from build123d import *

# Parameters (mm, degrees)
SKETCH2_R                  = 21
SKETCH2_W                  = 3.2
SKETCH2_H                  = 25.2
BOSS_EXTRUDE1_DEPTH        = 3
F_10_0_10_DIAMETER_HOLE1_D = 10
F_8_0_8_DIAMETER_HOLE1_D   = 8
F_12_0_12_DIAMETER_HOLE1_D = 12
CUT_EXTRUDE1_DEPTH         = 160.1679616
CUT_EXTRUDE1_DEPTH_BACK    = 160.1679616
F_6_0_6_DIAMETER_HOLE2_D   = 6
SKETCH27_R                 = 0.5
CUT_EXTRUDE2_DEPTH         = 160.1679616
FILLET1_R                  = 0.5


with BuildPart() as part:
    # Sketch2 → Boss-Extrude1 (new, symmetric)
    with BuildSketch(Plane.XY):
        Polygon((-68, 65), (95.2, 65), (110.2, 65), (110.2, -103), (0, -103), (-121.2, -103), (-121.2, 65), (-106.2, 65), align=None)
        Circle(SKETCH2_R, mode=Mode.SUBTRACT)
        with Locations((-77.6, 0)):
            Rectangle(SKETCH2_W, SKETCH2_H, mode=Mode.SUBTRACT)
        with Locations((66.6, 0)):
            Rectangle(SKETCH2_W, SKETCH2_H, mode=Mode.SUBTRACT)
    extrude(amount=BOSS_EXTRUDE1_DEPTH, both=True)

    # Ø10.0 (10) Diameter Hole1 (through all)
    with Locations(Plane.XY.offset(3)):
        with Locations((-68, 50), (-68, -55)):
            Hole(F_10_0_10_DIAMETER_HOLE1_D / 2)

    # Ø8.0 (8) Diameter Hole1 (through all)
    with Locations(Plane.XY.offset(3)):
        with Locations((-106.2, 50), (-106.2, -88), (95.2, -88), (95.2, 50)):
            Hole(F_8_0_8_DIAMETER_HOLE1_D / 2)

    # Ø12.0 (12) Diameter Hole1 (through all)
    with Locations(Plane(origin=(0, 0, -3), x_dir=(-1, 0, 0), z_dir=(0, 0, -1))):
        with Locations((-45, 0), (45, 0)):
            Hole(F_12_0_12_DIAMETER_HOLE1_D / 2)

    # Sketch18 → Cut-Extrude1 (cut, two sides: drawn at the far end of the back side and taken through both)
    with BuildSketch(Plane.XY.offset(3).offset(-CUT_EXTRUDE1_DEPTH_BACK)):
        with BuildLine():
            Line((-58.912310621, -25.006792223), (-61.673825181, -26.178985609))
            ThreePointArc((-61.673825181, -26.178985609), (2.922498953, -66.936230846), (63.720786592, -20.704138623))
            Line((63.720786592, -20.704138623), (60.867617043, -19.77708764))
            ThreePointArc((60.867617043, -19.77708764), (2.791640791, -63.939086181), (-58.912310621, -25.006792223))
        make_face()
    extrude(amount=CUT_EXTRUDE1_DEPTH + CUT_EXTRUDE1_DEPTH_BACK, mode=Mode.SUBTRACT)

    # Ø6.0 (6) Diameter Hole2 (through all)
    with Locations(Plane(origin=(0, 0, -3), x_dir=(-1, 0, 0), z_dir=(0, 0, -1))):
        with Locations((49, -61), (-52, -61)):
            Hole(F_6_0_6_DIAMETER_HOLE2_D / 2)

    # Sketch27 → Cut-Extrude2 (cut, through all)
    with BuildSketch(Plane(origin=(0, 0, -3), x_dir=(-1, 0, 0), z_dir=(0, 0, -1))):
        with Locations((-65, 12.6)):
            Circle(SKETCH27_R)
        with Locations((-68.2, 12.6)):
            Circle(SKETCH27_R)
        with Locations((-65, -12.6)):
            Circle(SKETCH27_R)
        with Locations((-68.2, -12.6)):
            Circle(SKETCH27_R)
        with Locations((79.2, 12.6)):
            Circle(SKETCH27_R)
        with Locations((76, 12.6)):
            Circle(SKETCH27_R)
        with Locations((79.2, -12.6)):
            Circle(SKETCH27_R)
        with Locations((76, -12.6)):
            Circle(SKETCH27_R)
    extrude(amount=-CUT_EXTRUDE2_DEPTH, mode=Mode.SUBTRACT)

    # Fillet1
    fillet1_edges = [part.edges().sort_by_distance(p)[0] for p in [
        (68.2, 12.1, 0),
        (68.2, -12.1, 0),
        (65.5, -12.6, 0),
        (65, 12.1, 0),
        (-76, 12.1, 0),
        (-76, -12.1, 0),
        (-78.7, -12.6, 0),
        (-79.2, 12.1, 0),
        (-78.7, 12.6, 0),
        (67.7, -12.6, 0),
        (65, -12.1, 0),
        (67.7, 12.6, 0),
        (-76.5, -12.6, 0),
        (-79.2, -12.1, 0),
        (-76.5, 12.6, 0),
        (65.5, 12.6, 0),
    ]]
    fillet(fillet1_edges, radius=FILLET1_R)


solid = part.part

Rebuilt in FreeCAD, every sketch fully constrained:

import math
import FreeCAD as App
import Part
import Sketcher

V = App.Vector
Q = App.Units.Quantity


def edges_at(feature, points):
    """Names of the edges that pass closest to the given points."""
    edges = feature.Shape.Edges
    near = lambda p: min(range(len(edges)), key=lambda i: edges[i].distToShape(Part.Vertex(*p))[0])
    return sorted({f"Edge{near(p) + 1}" for p in points})


def add_polygon(sketch, points):
    """Adds a closed chain of lines whose ends are joined by coincident constraints."""
    first, n = sketch.GeometryCount, len(points)
    for a, b in zip(points, points[1:] + points[:1]):
        sketch.addGeometry(Part.LineSegment(App.Vector(*a, 0), App.Vector(*b, 0)), False)
    for i in range(n):
        sketch.addConstraint(Sketcher.Constraint("Coincident", first + i, 2, first + (i + 1) % n, 1))

doc = App.newDocument("Part")
body = doc.addObject("PartDesign::Body", "Body")

sketch1 = body.newObject("Sketcher::SketchObject", "Sketch")
sketch1.AttachmentSupport = (doc.getObject("XY_Plane"), [""])
sketch1.MapMode = "FlatFace"
add_polygon(sketch1, [(110.2, 65), (-121.2, 65), (-121.2, -103), (110.2, -103)])
add_polygon(sketch1, [(65, -12.6), (65, 12.6), (68.2, 12.6), (68.2, -12.6)])
sketch1.addGeometry(Part.Circle(V(0, 0, 0), V(0, 0, 1), 21), False)
add_polygon(sketch1, [(-79.2, -12.6), (-79.2, 12.6), (-76, 12.6), (-76, -12.6)])
sketch1.addConstraint(Sketcher.Constraint("Horizontal", 0))
sketch1.addConstraint(Sketcher.Constraint("Vertical", 1))
sketch1.addConstraint(Sketcher.Constraint("Horizontal", 2))
sketch1.addConstraint(Sketcher.Constraint("Vertical", 3))
sketch1.addConstraint(Sketcher.Constraint("Vertical", 4))
sketch1.addConstraint(Sketcher.Constraint("Horizontal", 5))
sketch1.addConstraint(Sketcher.Constraint("Vertical", 6))
sketch1.addConstraint(Sketcher.Constraint("Horizontal", 7))
sketch1.addConstraint(Sketcher.Constraint("Vertical", 9))
sketch1.addConstraint(Sketcher.Constraint("Horizontal", 10))
sketch1.addConstraint(Sketcher.Constraint("Vertical", 11))
sketch1.addConstraint(Sketcher.Constraint("Horizontal", 12))
sketch1.addConstraint(Sketcher.Constraint("Coincident", 8, 3, -1, 1))
sketch1.addConstraint(Sketcher.Constraint("Horizontal", 5, 2, 9, 2))
sketch1.addConstraint(Sketcher.Constraint("Horizontal", 7, 2, 11, 2))
sketch1.addConstraint(Sketcher.Constraint("Equal", 7, 10))
sketch1.addConstraint(Sketcher.Constraint("Diameter", 8, Q("42 mm")))
sketch1.addConstraint(Sketcher.Constraint("DistanceY", 1, 2, 1, 1, Q("168 mm")))
sketch1.addConstraint(Sketcher.Constraint("DistanceX", 0, 2, 0, 1, Q("231.4 mm")))
sketch1.addConstraint(Sketcher.Constraint("DistanceX", 5, 1, 5, 2, Q("3.2 mm")))
sketch1.addConstraint(Sketcher.Constraint("DistanceY", 4, 1, 4, 2, Q("25.2 mm")))
sketch1.addConstraint(Sketcher.Constraint("DistanceY", -1, 1, 0, 2, Q("65 mm")))
sketch1.addConstraint(Sketcher.Constraint("DistanceX", -1, 1, 4, 2, Q("65 mm")))
sketch1.addConstraint(Sketcher.Constraint("DistanceX", 10, 2, -1, 1, Q("76 mm")))
sketch1.addConstraint(Sketcher.Constraint("DistanceX", 5, 2, 3, 2, Q("42 mm")))
sketch1.addConstraint(Sketcher.Constraint("DistanceY", -1, 1, 4, 2, Q("12.6 mm")))
pad1 = body.newObject("PartDesign::Pad", "Pad")
pad1.Profile = sketch1
pad1.Length = 6
pad1.Midplane = True

sketch2 = body.newObject("Sketcher::SketchObject", "Sketch001")
sketch2.AttachmentSupport = (doc.getObject("XY_Plane"), [""])
sketch2.MapMode = "FlatFace"
sketch2.AttachmentOffset = App.Placement(V(0, 0, 3), App.Rotation())
sketch2.addGeometry(Part.Circle(V(-68, 50, 0), V(0, 0, 1), 5), False)
sketch2.addGeometry(Part.Circle(V(-68, -55, 0), V(0, 0, 1), 5), False)
sketch2.addConstraint(Sketcher.Constraint("Equal", 0, 1))
sketch2.addConstraint(Sketcher.Constraint("Vertical", 0, 3, 1, 3))
sketch2.addConstraint(Sketcher.Constraint("Diameter", 0, Q("10 mm")))
sketch2.addConstraint(Sketcher.Constraint("DistanceX", 0, 3, -1, 1, Q("68 mm")))
sketch2.addConstraint(Sketcher.Constraint("DistanceY", -1, 1, 0, 3, Q("50 mm")))
sketch2.addConstraint(Sketcher.Constraint("DistanceY", 1, 3, -1, 1, Q("55 mm")))
doc.recompute()
hole = body.newObject("PartDesign::Hole", "Hole")
hole.Profile = sketch2
hole.ThreadType = "None"
hole.Diameter = 10
hole.DepthType = "ThroughAll"

sketch3 = body.newObject("Sketcher::SketchObject", "Sketch002")
sketch3.AttachmentSupport = (doc.getObject("XY_Plane"), [""])
sketch3.MapMode = "FlatFace"
sketch3.AttachmentOffset = App.Placement(V(0, 0, 3), App.Rotation())
sketch3.addGeometry(Part.Circle(V(-106.2, 50, 0), V(0, 0, 1), 4), False)
sketch3.addGeometry(Part.Circle(V(-106.2, -88, 0), V(0, 0, 1), 4), False)
sketch3.addGeometry(Part.Circle(V(95.2, -88, 0), V(0, 0, 1), 4), False)
sketch3.addGeometry(Part.Circle(V(95.2, 50, 0), V(0, 0, 1), 4), False)
sketch3.addConstraint(Sketcher.Constraint("Equal", 0, 1))
sketch3.addConstraint(Sketcher.Constraint("Equal", 1, 2))
sketch3.addConstraint(Sketcher.Constraint("Equal", 2, 3))
sketch3.addConstraint(Sketcher.Constraint("Horizontal", 1, 3, 2, 3))
sketch3.addConstraint(Sketcher.Constraint("Horizontal", 0, 3, 3, 3))
sketch3.addConstraint(Sketcher.Constraint("Vertical", 0, 3, 1, 3))
sketch3.addConstraint(Sketcher.Constraint("Vertical", 2, 3, 3, 3))
sketch3.addConstraint(Sketcher.Constraint("Diameter", 0, Q("8 mm")))
sketch3.addConstraint(Sketcher.Constraint("DistanceY", -1, 1, 0, 3, Q("50 mm")))
sketch3.addConstraint(Sketcher.Constraint("DistanceY", 1, 3, -1, 1, Q("88 mm")))
sketch3.addConstraint(Sketcher.Constraint("DistanceX", 0, 3, -1, 1, Q("106.2 mm")))
sketch3.addConstraint(Sketcher.Constraint("DistanceX", -1, 1, 2, 3, Q("95.2 mm")))
doc.recompute()
hole2 = body.newObject("PartDesign::Hole", "Hole001")
hole2.Profile = sketch3
hole2.ThreadType = "None"
hole2.Diameter = 8
hole2.DepthType = "ThroughAll"

sketch4 = body.newObject("Sketcher::SketchObject", "Sketch003")
sketch4.AttachmentSupport = (doc.getObject("XY_Plane"), [""])
sketch4.MapMode = "FlatFace"
sketch4.AttachmentOffset = App.Placement(V(0, 0, -3), App.Rotation())
sketch4.addGeometry(Part.Circle(V(45, 0, 0), V(0, 0, 1), 6), False)
sketch4.addGeometry(Part.Circle(V(-45, 0, 0), V(0, 0, 1), 6), False)
sketch4.addConstraint(Sketcher.Constraint("Equal", 0, 1))
sketch4.addConstraint(Sketcher.Constraint("Symmetric", 0, 3, 1, 3, -1, 1))
sketch4.addConstraint(Sketcher.Constraint("PointOnObject", 0, 3, -1))
sketch4.addConstraint(Sketcher.Constraint("Diameter", 0, Q("12 mm")))
sketch4.addConstraint(Sketcher.Constraint("DistanceX", -1, 1, 0, 3, Q("45 mm")))
doc.recompute()
hole3 = body.newObject("PartDesign::Hole", "Hole002")
hole3.Profile = sketch4
hole3.ThreadType = "None"
hole3.Diameter = 12
hole3.DepthType = "ThroughAll"
hole3.Reversed = True

sketch5 = body.newObject("Sketcher::SketchObject", "Sketch004")
sketch5.AttachmentSupport = (doc.getObject("XY_Plane"), [""])
sketch5.MapMode = "FlatFace"
sketch5.AttachmentOffset = App.Placement(V(0, 0, 3), App.Rotation())
sketch5.addGeometry(Part.LineSegment(V(-58.9, -25, 0), V(-61.7, -26.2, 0)), False)
sketch5.addGeometry(Part.ArcOfCircle(Part.Circle(V(0, 0, 0), V(0, 0, 1), 67), math.radians(-157), math.radians(-18)), False)
sketch5.addGeometry(Part.LineSegment(V(63.7, -20.7, 0), V(60.9, -19.8, 0)), False)
sketch5.addGeometry(Part.ArcOfCircle(Part.Circle(V(0, 0, 0), V(0, 0, 1), 64), math.radians(-157), math.radians(-18)), False)
sketch5.addConstraint(Sketcher.Constraint("Coincident", 0, 2, 1, 1))
sketch5.addConstraint(Sketcher.Constraint("Coincident", 1, 2, 2, 1))
sketch5.addConstraint(Sketcher.Constraint("Coincident", 2, 2, 3, 2))
sketch5.addConstraint(Sketcher.Constraint("Coincident", 3, 1, 0, 1))
sketch5.addConstraint(Sketcher.Constraint("Coincident", 1, 3, -1, 1))
sketch5.addConstraint(Sketcher.Constraint("Coincident", 3, 3, -1, 1))
sketch5.addConstraint(Sketcher.Constraint("Radius", 1, Q("67 mm")))
sketch5.addConstraint(Sketcher.Constraint("Radius", 3, Q("64 mm")))
sketch5.addConstraint(Sketcher.Constraint("Angle", 0, Q("-157 deg")))
sketch5.addConstraint(Sketcher.Constraint("Angle", 2, Q("162 deg")))
sketch5.addConstraint(Sketcher.Constraint("DistanceY", 1, 2, -1, 1, Q("20.704139 mm")))
sketch5.addConstraint(Sketcher.Constraint("DistanceX", 3, 1, -1, 1, Q("58.912311 mm")))
pocket1 = body.newObject("PartDesign::Pocket", "Pocket")
pocket1.Profile = sketch5
pocket1.Type = "ThroughAll"
pocket1.Midplane = True

sketch6 = body.newObject("Sketcher::SketchObject", "Sketch005")
sketch6.AttachmentSupport = (doc.getObject("XY_Plane"), [""])
sketch6.MapMode = "FlatFace"
sketch6.AttachmentOffset = App.Placement(V(0, 0, -3), App.Rotation())
sketch6.addGeometry(Part.Circle(V(-49, -61, 0), V(0, 0, 1), 3), False)
sketch6.addGeometry(Part.Circle(V(52, -61, 0), V(0, 0, 1), 3), False)
sketch6.addConstraint(Sketcher.Constraint("Equal", 0, 1))
sketch6.addConstraint(Sketcher.Constraint("Horizontal", 0, 3, 1, 3))
sketch6.addConstraint(Sketcher.Constraint("Diameter", 0, Q("6 mm")))
sketch6.addConstraint(Sketcher.Constraint("DistanceX", 0, 3, -1, 1, Q("49 mm")))
sketch6.addConstraint(Sketcher.Constraint("DistanceY", 0, 3, -1, 1, Q("61 mm")))
sketch6.addConstraint(Sketcher.Constraint("DistanceX", -1, 1, 1, 3, Q("52 mm")))
doc.recompute()
hole4 = body.newObject("PartDesign::Hole", "Hole003")
hole4.Profile = sketch6
hole4.ThreadType = "None"
hole4.Diameter = 6
hole4.DepthType = "ThroughAll"
hole4.Reversed = True

sketch7 = body.newObject("Sketcher::SketchObject", "Sketch006")
sketch7.AttachmentSupport = (doc.getObject("XY_Plane"), [""])
sketch7.MapMode = "FlatFace"
sketch7.AttachmentOffset = App.Placement(V(0, 0, -3), App.Rotation())
sketch7.addGeometry(Part.Circle(V(65, 12.6, 0), V(0, 0, 1), 0.5), False)
sketch7.addGeometry(Part.Circle(V(68.2, 12.6, 0), V(0, 0, 1), 0.5), False)
sketch7.addGeometry(Part.Circle(V(65, -12.6, 0), V(0, 0, 1), 0.5), False)
sketch7.addGeometry(Part.Circle(V(68.2, -12.6, 0), V(0, 0, 1), 0.5), False)
sketch7.addGeometry(Part.Circle(V(-79.2, 12.6, 0), V(0, 0, 1), 0.5), False)
sketch7.addGeometry(Part.Circle(V(-76, 12.6, 0), V(0, 0, 1), 0.5), False)
sketch7.addGeometry(Part.Circle(V(-79.2, -12.6, 0), V(0, 0, 1), 0.5), False)
sketch7.addGeometry(Part.Circle(V(-76, -12.6, 0), V(0, 0, 1), 0.5), False)
sketch7.addConstraint(Sketcher.Constraint("Equal", 0, 1))
sketch7.addConstraint(Sketcher.Constraint("Equal", 1, 2))
sketch7.addConstraint(Sketcher.Constraint("Equal", 2, 3))
sketch7.addConstraint(Sketcher.Constraint("Equal", 3, 4))
sketch7.addConstraint(Sketcher.Constraint("Equal", 4, 5))
sketch7.addConstraint(Sketcher.Constraint("Equal", 5, 6))
sketch7.addConstraint(Sketcher.Constraint("Equal", 6, 7))
sketch7.addConstraint(Sketcher.Constraint("Symmetric", 0, 3, 2, 3, -1))
sketch7.addConstraint(Sketcher.Constraint("Symmetric", 1, 3, 3, 3, -1))
sketch7.addConstraint(Sketcher.Constraint("Symmetric", 4, 3, 6, 3, -1))
sketch7.addConstraint(Sketcher.Constraint("Symmetric", 5, 3, 7, 3, -1))
sketch7.addConstraint(Sketcher.Constraint("Horizontal", 0, 3, 1, 3))
sketch7.addConstraint(Sketcher.Constraint("Horizontal", 1, 3, 4, 3))
sketch7.addConstraint(Sketcher.Constraint("Horizontal", 4, 3, 5, 3))
sketch7.addConstraint(Sketcher.Constraint("Diameter", 0, Q("1 mm")))
sketch7.addConstraint(Sketcher.Constraint("DistanceX", -1, 1, 0, 3, Q("65 mm")))
sketch7.addConstraint(Sketcher.Constraint("DistanceX", 5, 3, -1, 1, Q("76 mm")))
sketch7.addConstraint(Sketcher.Constraint("DistanceY", -1, 1, 0, 3, Q("12.6 mm")))
sketch7.addConstraint(Sketcher.Constraint("DistanceX", -1, 1, 1, 3, Q("68.2 mm")))
sketch7.addConstraint(Sketcher.Constraint("DistanceX", 4, 3, -1, 1, Q("79.2 mm")))
pocket2 = body.newObject("PartDesign::Pocket", "Pocket001")
pocket2.Profile = sketch7
pocket2.Type = "ThroughAll"
pocket2.Reversed = True
doc.recompute()

fillet = body.newObject("PartDesign::Fillet", "Fillet")
fillet.Base = (pocket2, edges_at(pocket2, [
    (68.2, 12.1, 0),
    (68.2, -12.1, 0),
    (65.5, -12.6, 0),
    (65, 12.1, 0),
    (-76, 12.1, 0),
    (-76, -12.1, 0),
    (-78.7, -12.6, 0),
    (-79.2, 12.1, 0),
    (-78.7, 12.6, 0),
    (67.7, -12.6, 0),
    (65, -12.1, 0),
    (67.7, 12.6, 0),
    (-76.5, -12.6, 0),
    (-79.2, -12.1, 0),
    (-76.5, 12.6, 0),
    (65.5, 12.6, 0),
]))
fillet.Radius = 0.5

doc.recompute()
